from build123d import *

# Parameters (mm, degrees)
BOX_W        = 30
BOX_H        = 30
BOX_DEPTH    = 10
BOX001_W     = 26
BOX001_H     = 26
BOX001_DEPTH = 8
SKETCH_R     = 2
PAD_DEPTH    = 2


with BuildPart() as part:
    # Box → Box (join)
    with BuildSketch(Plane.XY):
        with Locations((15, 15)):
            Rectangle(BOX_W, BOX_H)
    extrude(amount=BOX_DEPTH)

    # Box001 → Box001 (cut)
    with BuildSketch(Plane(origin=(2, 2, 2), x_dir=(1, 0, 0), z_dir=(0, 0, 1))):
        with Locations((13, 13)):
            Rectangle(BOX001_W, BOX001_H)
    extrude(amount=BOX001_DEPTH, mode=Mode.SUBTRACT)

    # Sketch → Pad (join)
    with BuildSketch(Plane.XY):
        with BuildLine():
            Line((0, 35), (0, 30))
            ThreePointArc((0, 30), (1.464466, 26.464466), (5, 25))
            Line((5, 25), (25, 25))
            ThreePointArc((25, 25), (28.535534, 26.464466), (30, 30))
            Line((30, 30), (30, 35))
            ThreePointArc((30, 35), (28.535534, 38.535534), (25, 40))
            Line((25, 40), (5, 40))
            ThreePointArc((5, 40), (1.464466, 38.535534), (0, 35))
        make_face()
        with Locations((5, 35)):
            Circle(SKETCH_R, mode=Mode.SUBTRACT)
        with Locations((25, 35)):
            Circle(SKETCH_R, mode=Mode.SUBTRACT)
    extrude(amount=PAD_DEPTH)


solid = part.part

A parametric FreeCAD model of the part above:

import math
import FreeCAD as App
import Part
import Sketcher
from FreeCAD import Vector

doc = App.newDocument("Part")
body = doc.addObject("PartDesign::Body", "Body")

# Sketch on XY plane
sketch1 = body.newObject("Sketcher::SketchObject", "Sketch")
sketch1.AttachmentSupport = (doc.getObject("XY_Plane"), [""])
sketch1.MapMode = "FlatFace"
sketch1.addGeometry([
    Part.LineSegment(Vector(0, 30, 0), Vector(0, 0, 0)),
    Part.LineSegment(Vector(0, 0, 0), Vector(30, 0, 0)),
    Part.LineSegment(Vector(30, 0, 0), Vector(30, 30, 0)),
    Part.LineSegment(Vector(30, 30, 0), Vector(0, 30, 0)),
], False)
sketch1.addConstraint([
    Sketcher.Constraint("Coincident", 0, 2, 1, 1),
    Sketcher.Constraint("Coincident", 1, 2, 2, 1),
    Sketcher.Constraint("Coincident", 2, 2, 3, 1),
    Sketcher.Constraint("Coincident", 3, 2, 0, 1),
    Sketcher.Constraint("Vertical", 0),
    Sketcher.Constraint("Horizontal", 1),
    Sketcher.Constraint("Vertical", 2),
    Sketcher.Constraint("Horizontal", 3),
    Sketcher.Constraint("Coincident", 0, 2, -1, 1),
    Sketcher.Constraint("Equal", 3, 0),
    Sketcher.Constraint("DistanceX", 1, 1, 1, 2, 30.0),
])
pad1 = body.newObject("PartDesign::Pad", "Pad")
pad1.Profile = sketch1
pad1.Length = 10

# Sketch on XY plane
sketch2 = body.newObject("Sketcher::SketchObject", "Sketch001")
sketch2.AttachmentSupport = (doc.getObject("XY_Plane"), [""])
sketch2.MapMode = "FlatFace"
sketch2.AttachmentOffset = App.Placement(Vector(0, 0, 2), App.Rotation())
sketch2.addGeometry([
    Part.LineSegment(Vector(2, 28, 0), Vector(2, 2, 0)),
    Part.LineSegment(Vector(2, 2, 0), Vector(28, 2, 0)),
    Part.LineSegment(Vector(28, 2, 0), Vector(28, 28, 0)),
    Part.LineSegment(Vector(28, 28, 0), Vector(2, 28, 0)),
], False)
sketch2.addConstraint([
    Sketcher.Constraint("Coincident", 0, 2, 1, 1),
    Sketcher.Constraint("Coincident", 1, 2, 2, 1),
    Sketcher.Constraint("Coincident", 2, 2, 3, 1),
    Sketcher.Constraint("Coincident", 3, 2, 0, 1),
    Sketcher.Constraint("Vertical", 0),
    Sketcher.Constraint("Horizontal", 1),
    Sketcher.Constraint("Vertical", 2),
    Sketcher.Constraint("Horizontal", 3),
    Sketcher.Constraint("Equal", 3, 0),
    Sketcher.Constraint("DistanceX", 1, 1, 1, 2, 26.0),
    Sketcher.Constraint("DistanceX", -1, 1, 0, 2, 2.0),
    Sketcher.Constraint("DistanceY", -1, 1, 0, 2, 2.0),
])
pocket1 = body.newObject("PartDesign::Pocket", "Pocket")
pocket1.Profile = sketch2
pocket1.Length = 8
pocket1.Reversed = True

# Sketch on XY plane
sketch3 = body.newObject("Sketcher::SketchObject", "Sketch002")
sketch3.AttachmentSupport = (doc.getObject("XY_Plane"), [""])
sketch3.MapMode = "FlatFace"
sketch3.addGeometry([
    Part.LineSegment(Vector(0, 35, 0), Vector(0, 30, 0)),  # 0
    Part.ArcOfCircle(Part.Circle(Vector(5, 30, 0), Vector(0, 0, 1), 5), math.radians(179.999996), math.radians(270.000004)),  # 1
    Part.LineSegment(Vector(5, 25, 0), Vector(25, 25, 0)),  # 2
    Part.ArcOfCircle(Part.Circle(Vector(25, 30, 0), Vector(0, 0, 1), 5), math.radians(-90.000004), math.radians(0.000004)),  # 3
    Part.LineSegment(Vector(30, 30, 0), Vector(30, 35, 0)),  # 4
    Part.ArcOfCircle(Part.Circle(Vector(25, 35, 0), Vector(0, 0, 1), 5), math.radians(-0.000004), math.radians(90.000004)),  # 5
    Part.LineSegment(Vector(25, 40, 0), Vector(5, 40, 0)),  # 6
    Part.ArcOfCircle(Part.Circle(Vector(5, 35, 0), Vector(0, 0, 1), 5), math.radians(89.999996), math.radians(180.000004)),  # 7
    Part.Circle(Vector(5, 35, 0), Vector(0, 0, 1), 2),  # 8
    Part.Circle(Vector(25, 35, 0), Vector(0, 0, 1), 2),  # 9
], False)
sketch3.addConstraint([
    Sketcher.Constraint("Tangent", 0, 2, 1, 1),
    Sketcher.Constraint("Tangent", 1, 2, 2, 1),
    Sketcher.Constraint("Tangent", 2, 2, 3, 1),
    Sketcher.Constraint("Tangent", 3, 2, 4, 1),
    Sketcher.Constraint("Tangent", 4, 2, 5, 1),
    Sketcher.Constraint("Tangent", 5, 2, 6, 1),
    Sketcher.Constraint("Tangent", 6, 2, 7, 1),
    Sketcher.Constraint("Tangent", 7, 2, 0, 1),
    Sketcher.Constraint("Vertical", 0),
    Sketcher.Constraint("Horizontal", 2),
    Sketcher.Constraint("Vertical", 4),
    Sketcher.Constraint("Horizontal", 6),
    Sketcher.Constraint("Coincident", 8, 3, 7, 3),
    Sketcher.Constraint("Coincident", 9, 3, 5, 3),
    Sketcher.Constraint("Equal", 1, 3),
    Sketcher.Constraint("Equal", 3, 5),
    Sketcher.Constraint("Equal", 5, 7),
    Sketcher.Constraint("Equal", 8, 9),
    Sketcher.Constraint("PointOnObject", 0, 2, -2),
    Sketcher.Constraint("Diameter", 8, 4.0),
    Sketcher.Constraint("Radius", 1, 5.0),
    Sketcher.Constraint("DistanceX", 2, 1, 2, 2, 20.0),
    Sketcher.Constraint("DistanceY", 0, 2, 0, 1, 5.0),
    Sketcher.Constraint("DistanceY", -1, 1, 1, 3, 30.0),
])
pad2 = body.newObject("PartDesign::Pad", "Pad001")
pad2.Profile = sketch3
pad2.Length = 2

doc.recompute()
